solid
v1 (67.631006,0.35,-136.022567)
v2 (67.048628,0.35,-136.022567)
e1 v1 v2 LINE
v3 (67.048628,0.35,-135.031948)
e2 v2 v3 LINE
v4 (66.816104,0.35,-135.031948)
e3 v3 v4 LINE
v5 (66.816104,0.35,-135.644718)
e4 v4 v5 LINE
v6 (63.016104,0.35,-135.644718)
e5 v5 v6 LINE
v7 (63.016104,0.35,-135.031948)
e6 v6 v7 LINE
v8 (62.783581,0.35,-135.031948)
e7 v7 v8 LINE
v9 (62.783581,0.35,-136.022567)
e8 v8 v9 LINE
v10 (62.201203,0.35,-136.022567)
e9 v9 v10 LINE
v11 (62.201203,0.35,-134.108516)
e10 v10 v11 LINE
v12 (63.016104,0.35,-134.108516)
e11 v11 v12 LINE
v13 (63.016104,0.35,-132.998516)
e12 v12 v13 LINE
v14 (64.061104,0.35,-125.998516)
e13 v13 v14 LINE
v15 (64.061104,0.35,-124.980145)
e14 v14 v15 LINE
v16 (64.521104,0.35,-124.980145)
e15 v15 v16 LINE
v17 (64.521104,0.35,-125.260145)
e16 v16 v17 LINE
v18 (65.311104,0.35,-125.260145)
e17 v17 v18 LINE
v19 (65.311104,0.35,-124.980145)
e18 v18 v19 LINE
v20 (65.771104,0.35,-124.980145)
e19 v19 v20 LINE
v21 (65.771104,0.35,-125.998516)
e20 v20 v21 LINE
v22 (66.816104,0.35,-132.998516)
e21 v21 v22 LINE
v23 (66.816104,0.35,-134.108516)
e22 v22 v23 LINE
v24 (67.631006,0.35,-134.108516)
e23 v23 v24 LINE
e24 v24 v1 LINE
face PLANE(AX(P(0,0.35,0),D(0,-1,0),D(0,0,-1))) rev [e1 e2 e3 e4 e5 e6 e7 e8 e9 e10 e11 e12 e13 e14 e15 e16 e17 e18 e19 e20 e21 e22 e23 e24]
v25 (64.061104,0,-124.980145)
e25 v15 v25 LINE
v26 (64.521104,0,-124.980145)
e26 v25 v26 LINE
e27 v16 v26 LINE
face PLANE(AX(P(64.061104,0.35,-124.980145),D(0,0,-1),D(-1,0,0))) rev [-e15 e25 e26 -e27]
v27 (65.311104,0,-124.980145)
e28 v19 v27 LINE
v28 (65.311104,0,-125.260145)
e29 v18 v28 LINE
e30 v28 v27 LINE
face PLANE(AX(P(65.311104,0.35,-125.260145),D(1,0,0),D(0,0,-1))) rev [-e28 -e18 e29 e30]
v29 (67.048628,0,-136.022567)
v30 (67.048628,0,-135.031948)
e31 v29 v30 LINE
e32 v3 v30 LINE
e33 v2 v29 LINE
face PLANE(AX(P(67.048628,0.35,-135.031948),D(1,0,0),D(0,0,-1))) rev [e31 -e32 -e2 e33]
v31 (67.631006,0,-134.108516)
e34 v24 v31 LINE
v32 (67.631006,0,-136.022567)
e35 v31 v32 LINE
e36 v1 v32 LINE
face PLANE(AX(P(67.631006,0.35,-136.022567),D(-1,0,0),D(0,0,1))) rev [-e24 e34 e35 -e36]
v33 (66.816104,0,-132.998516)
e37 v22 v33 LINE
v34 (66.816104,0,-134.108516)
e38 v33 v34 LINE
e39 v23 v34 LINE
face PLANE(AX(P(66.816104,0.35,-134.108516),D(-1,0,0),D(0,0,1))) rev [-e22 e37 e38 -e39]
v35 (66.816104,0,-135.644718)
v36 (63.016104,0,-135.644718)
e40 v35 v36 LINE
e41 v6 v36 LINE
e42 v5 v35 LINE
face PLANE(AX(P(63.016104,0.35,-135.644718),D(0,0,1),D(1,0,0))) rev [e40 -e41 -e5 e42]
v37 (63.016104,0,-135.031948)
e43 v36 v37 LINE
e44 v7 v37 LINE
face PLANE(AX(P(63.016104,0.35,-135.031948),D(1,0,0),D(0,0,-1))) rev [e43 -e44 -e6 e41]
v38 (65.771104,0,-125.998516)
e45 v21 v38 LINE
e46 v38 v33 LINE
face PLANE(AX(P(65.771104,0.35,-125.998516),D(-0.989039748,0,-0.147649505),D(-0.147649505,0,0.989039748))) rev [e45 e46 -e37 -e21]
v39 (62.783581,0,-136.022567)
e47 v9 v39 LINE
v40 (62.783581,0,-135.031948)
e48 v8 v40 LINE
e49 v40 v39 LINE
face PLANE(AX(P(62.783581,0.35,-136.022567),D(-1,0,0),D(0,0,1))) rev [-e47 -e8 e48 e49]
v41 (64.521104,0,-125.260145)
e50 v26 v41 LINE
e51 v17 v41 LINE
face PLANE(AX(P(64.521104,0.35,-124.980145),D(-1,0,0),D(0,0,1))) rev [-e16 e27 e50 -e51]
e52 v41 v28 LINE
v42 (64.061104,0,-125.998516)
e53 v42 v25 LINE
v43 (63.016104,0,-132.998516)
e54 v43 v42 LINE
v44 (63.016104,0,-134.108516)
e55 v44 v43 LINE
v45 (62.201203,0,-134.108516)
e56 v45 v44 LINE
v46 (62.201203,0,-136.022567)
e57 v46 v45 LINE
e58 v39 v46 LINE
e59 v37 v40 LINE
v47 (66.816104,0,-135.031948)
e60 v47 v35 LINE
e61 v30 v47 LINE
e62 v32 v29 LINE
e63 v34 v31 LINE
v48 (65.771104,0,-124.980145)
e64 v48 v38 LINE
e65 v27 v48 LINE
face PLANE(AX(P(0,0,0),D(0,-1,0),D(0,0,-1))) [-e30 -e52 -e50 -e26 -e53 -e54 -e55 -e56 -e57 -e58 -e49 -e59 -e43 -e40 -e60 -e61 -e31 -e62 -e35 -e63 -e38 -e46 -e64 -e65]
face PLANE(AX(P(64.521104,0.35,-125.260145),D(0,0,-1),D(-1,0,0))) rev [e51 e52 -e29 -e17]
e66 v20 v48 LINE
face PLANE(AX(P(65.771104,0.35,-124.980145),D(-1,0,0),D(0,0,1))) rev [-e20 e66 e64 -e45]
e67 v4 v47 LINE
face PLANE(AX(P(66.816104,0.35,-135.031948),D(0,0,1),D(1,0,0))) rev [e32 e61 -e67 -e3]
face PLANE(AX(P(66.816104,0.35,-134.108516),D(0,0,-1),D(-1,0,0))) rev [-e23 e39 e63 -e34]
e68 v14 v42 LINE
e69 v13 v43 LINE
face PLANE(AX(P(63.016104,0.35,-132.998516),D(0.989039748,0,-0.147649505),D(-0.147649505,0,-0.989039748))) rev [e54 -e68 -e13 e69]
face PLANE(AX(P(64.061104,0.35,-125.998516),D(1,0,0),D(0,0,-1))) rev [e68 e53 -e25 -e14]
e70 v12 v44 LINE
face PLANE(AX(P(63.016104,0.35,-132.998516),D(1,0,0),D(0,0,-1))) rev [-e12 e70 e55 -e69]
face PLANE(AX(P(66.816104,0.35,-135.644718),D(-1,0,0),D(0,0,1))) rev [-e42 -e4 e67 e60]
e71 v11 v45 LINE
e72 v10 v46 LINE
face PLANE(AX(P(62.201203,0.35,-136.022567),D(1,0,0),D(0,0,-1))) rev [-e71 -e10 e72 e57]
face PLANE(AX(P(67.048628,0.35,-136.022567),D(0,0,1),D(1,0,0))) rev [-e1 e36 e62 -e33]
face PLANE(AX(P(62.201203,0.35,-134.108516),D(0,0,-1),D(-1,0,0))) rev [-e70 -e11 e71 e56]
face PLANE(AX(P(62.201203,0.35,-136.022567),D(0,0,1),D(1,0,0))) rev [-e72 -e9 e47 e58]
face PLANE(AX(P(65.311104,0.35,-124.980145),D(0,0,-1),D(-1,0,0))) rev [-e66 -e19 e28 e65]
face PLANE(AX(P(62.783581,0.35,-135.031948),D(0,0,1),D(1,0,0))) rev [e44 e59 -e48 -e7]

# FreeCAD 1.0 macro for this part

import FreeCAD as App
import Part
import Sketcher


def add_polygon(sketch, points):
    """Adds a closed chain of lines whose ends are joined by coincident constraints."""
    first, n = sketch.GeometryCount, len(points)
    for a, b in zip(points, points[1:] + points[:1]):
        sketch.addGeometry(Part.LineSegment(App.Vector(*a, 0), App.Vector(*b, 0)), False)
    for i in range(n):
        sketch.addConstraint(Sketcher.Constraint("Coincident", first + i, 2, first + (i + 1) % n, 1))

doc = App.newDocument("Part")
body = doc.addObject("PartDesign::Body", "Body")

sketch1 = doc.addObject("Sketcher::SketchObject", "Sketch")
body.addObject(sketch1)
sketch1.AttachmentSupport = (doc.XZ_Plane, [""])
sketch1.MapMode = "FlatFace"
add_polygon(sketch1, [(65.77, -126), (66.82, -133), (66.82, -134.11), (67.63, -134.11), (67.63, -136.02), (67.05, -136.02), (67.05, -135.03), (66.82, -135.03), (66.82, -135.64), (63.02, -135.64), (63.02, -135.03), (62.78, -135.03), (62.78, -136.02), (62.2, -136.02), (62.2, -134.11), (63.02, -134.11), (63.02, -133), (64.06, -126), (64.06, -124.98), (64.52, -124.98), (64.52, -125.26), (65.31, -125.26), (65.31, -124.98), (65.77, -124.98)])
sketch1.addConstraint([
    Sketcher.Constraint("Vertical", 1),
    Sketcher.Constraint("Horizontal", 2),
    Sketcher.Constraint("Vertical", 3),
    Sketcher.Constraint("Horizontal", 4),
    Sketcher.Constraint("Vertical", 5),
    Sketcher.Constraint("Horizontal", 6),
    Sketcher.Constraint("Vertical", 7),
    Sketcher.Constraint("Horizontal", 8),
    Sketcher.Constraint("Vertical", 9),
    Sketcher.Constraint("Horizontal", 10),
    Sketcher.Constraint("Vertical", 11),
    Sketcher.Constraint("Horizontal", 12),
    Sketcher.Constraint("Vertical", 13),
    Sketcher.Constraint("Horizontal", 14),
    Sketcher.Constraint("Vertical", 15),
    Sketcher.Constraint("Vertical", 17),
    Sketcher.Constraint("Horizontal", 18),
    Sketcher.Constraint("Vertical", 19),
    Sketcher.Constraint("Horizontal", 20),
    Sketcher.Constraint("Vertical", 21),
    Sketcher.Constraint("Horizontal", 22),
    Sketcher.Constraint("Vertical", 23),
    Sketcher.Constraint("Horizontal", 6, 2, 9, 2),
    Sketcher.Constraint("Horizontal", 4, 2, 11, 2),
    Sketcher.Constraint("Horizontal", 2, 2, 13, 2),
    Sketcher.Constraint("Horizontal", 0, 2, 15, 2),
    Sketcher.Constraint("Horizontal", 18, 2, 21, 2),
    Sketcher.Constraint("Horizontal", 16, 2, 23, 2),
    Sketcher.Constraint("Vertical", 1, 2, 6, 2),
    Sketcher.Constraint("Vertical", 9, 2, 14, 2),
    Sketcher.Constraint("Equal", 6, 10),
    Sketcher.Constraint("Equal", 4, 12),
    Sketcher.Constraint("Equal", 18, 22),
    Sketcher.Constraint("Equal", 0, 16),
    Sketcher.Constraint("DistanceX", 8, 2, 8, 1, 3.8),
    Sketcher.Constraint("DistanceY", 15, 2, 16, 2, 7.0),
    Sketcher.Constraint("DistanceX", 18, 1, 18, 2, 0.46),
    Sketcher.Constraint("DistanceX", 20, 1, 20, 2, 0.79),
    Sketcher.Constraint("DistanceY", 1, 2, 1, 1, 1.11),
    Sketcher.Constraint("DistanceY", 19, 2, 19, 1, 0.28),
    Sketcher.Constraint("DistanceX", 2, 1, 2, 2, 0.814901),
    Sketcher.Constraint("DistanceY", 3, 2, 3, 1, 1.914051),
    Sketcher.Constraint("DistanceY", 5, 1, 5, 2, 0.990619),
    Sketcher.Constraint("DistanceY", 7, 2, 7, 1, 0.612771),
    Sketcher.Constraint("DistanceY", 17, 1, 17, 2, 1.018371),
    Sketcher.Constraint("DistanceX", 4, 2, 4, 1, 0.582378),
    Sketcher.Constraint("DistanceX", -1, 1, 4, 2, 67.048628),
    Sketcher.Constraint("DistanceY", 7, 2, -1, 1, 135.644718),
])
pad1 = doc.addObject("PartDesign::Pad", "Pad")
body.addObject(pad1)
pad1.Profile = sketch1
pad1.Length = 0.35
pad1.Reversed = True

doc.recompute()
